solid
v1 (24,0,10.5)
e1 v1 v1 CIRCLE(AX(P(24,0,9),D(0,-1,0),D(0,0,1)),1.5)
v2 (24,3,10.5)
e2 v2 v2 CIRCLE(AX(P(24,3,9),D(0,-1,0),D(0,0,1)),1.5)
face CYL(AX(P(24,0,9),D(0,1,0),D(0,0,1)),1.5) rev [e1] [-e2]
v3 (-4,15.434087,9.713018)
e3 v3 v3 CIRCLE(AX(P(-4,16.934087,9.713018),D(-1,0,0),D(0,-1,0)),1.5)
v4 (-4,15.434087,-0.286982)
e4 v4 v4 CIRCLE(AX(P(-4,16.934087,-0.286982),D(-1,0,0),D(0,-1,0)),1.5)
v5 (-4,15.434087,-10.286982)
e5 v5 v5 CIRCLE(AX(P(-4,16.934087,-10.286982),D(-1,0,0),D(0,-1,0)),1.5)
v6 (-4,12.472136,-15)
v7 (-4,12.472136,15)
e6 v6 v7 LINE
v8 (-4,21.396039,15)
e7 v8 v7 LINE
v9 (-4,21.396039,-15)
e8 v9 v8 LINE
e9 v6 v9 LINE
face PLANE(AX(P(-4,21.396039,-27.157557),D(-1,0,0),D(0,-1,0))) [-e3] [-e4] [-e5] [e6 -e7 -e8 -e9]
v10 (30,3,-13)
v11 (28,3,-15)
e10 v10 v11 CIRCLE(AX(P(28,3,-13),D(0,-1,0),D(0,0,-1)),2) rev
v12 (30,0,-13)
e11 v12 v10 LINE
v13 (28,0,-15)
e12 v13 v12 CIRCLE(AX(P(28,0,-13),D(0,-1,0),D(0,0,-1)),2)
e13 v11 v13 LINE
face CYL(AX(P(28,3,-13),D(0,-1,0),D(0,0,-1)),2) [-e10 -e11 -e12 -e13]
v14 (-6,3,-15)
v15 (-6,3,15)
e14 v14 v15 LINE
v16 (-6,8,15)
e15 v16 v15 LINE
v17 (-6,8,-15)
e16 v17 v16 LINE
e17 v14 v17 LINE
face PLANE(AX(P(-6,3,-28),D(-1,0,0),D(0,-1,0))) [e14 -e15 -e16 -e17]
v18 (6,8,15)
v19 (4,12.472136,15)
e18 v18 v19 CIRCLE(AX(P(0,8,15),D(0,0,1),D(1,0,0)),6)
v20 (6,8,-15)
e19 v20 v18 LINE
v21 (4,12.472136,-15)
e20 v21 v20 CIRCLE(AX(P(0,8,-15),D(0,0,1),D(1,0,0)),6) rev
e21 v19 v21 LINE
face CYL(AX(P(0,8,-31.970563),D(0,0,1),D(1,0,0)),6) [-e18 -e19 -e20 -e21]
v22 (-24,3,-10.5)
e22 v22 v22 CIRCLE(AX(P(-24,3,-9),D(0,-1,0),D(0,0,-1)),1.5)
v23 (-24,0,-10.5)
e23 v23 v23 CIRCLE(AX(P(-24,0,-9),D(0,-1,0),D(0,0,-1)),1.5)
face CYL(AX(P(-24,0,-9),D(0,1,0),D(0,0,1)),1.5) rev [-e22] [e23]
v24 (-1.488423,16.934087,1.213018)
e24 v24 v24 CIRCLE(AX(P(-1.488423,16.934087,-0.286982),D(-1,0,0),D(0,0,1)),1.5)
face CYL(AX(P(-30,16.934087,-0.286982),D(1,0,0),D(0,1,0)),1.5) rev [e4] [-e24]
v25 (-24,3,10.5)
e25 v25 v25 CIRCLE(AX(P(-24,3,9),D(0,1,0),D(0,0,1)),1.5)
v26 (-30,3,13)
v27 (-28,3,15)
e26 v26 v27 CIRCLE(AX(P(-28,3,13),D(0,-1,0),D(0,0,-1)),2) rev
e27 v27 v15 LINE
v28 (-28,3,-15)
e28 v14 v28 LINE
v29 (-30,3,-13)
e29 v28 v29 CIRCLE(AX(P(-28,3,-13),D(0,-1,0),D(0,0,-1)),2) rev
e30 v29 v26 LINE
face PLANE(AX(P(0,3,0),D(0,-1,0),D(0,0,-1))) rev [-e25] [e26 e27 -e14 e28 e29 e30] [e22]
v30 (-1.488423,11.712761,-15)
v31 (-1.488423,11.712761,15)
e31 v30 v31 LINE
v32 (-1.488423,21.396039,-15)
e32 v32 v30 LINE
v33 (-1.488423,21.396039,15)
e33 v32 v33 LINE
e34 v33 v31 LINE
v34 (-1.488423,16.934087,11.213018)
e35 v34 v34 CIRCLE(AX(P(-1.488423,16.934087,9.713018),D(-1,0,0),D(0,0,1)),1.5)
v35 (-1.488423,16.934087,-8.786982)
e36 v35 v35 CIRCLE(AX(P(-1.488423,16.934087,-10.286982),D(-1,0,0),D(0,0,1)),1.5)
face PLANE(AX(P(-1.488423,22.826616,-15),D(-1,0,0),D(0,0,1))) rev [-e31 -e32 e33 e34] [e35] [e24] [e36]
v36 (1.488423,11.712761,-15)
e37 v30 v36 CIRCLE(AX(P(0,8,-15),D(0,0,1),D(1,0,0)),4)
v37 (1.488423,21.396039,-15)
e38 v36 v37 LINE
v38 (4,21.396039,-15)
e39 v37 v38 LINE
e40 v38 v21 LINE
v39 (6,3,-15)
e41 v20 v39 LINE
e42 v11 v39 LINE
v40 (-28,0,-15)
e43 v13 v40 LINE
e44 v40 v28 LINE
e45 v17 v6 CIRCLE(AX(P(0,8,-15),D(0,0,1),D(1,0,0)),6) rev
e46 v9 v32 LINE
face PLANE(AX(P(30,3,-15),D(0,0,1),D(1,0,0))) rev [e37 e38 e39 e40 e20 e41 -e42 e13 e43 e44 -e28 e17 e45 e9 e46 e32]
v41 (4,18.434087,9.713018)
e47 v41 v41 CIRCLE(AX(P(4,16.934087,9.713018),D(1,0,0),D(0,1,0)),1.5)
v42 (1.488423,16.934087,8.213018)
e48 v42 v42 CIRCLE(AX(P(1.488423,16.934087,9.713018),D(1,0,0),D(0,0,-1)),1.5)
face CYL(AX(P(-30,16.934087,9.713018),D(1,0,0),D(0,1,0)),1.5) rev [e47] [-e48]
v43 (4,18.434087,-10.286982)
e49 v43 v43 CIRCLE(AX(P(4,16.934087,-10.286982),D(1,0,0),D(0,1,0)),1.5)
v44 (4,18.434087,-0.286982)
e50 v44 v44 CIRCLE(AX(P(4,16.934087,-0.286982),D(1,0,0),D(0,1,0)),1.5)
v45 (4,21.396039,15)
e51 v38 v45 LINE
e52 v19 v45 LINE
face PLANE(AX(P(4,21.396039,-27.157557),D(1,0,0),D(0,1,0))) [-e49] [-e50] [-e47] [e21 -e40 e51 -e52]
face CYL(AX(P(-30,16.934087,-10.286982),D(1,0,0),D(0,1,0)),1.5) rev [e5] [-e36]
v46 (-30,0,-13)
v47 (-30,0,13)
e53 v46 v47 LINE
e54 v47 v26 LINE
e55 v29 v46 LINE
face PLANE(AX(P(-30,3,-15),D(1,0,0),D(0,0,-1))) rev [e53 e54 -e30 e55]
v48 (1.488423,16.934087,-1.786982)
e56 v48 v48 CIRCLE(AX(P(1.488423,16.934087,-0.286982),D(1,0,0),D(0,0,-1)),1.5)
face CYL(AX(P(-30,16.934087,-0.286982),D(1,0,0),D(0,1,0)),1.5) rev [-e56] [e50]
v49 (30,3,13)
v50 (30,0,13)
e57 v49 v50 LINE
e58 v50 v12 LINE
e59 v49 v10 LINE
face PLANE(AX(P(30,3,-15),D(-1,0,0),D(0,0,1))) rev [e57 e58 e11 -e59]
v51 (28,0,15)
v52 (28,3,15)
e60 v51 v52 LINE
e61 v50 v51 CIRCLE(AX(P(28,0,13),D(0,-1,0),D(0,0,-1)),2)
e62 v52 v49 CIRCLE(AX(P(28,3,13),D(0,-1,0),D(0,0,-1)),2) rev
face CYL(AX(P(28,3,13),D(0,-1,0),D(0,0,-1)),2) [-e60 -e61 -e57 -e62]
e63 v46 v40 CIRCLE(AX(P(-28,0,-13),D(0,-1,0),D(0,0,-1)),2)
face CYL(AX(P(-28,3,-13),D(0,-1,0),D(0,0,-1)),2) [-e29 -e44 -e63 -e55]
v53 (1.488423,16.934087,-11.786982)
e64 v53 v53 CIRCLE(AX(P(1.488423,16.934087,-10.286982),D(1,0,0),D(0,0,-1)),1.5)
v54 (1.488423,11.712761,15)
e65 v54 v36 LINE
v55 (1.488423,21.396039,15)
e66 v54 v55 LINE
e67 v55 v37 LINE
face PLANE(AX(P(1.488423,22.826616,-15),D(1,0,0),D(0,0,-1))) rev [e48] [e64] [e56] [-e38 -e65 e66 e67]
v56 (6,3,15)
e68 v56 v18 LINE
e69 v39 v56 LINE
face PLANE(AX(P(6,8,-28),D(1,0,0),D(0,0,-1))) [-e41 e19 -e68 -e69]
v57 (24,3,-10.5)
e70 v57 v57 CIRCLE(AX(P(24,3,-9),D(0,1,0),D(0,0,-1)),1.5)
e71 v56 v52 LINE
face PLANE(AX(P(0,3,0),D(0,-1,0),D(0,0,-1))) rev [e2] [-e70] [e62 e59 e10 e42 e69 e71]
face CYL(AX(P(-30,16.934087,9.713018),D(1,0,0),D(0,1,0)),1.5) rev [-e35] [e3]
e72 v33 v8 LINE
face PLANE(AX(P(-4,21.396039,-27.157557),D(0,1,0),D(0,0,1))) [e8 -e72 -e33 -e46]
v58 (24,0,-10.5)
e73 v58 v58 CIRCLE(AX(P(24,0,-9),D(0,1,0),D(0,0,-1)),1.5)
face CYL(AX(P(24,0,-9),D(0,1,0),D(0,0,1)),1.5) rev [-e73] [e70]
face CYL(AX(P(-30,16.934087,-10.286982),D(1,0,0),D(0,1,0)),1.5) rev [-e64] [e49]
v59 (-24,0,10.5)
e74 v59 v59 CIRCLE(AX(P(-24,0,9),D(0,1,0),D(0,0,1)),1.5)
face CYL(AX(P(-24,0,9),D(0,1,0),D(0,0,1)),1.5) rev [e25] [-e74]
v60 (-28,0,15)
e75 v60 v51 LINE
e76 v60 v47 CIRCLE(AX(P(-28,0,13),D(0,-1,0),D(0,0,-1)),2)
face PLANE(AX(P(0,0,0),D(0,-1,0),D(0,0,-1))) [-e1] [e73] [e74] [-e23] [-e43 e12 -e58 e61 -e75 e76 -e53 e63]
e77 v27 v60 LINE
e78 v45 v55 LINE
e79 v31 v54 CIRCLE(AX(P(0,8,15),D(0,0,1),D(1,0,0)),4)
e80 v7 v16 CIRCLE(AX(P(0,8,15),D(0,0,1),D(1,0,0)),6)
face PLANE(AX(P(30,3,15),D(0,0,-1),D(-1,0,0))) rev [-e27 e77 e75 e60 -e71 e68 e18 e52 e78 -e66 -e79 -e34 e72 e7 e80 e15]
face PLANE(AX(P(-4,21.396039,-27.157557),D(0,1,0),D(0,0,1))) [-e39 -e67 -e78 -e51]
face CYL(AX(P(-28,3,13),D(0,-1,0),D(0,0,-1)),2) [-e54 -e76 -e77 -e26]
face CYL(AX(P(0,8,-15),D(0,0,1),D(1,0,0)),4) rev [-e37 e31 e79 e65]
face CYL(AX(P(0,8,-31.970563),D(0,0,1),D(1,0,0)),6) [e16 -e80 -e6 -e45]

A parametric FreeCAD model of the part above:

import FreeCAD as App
import Part
import Sketcher
Q = App.Units.Quantity


def edges_at(feature, points):
    """Names of the edges that pass closest to the given points."""
    edges = feature.Shape.Edges
    near = lambda p: min(range(len(edges)), key=lambda i: edges[i].distToShape(Part.Vertex(*p))[0])
    return sorted({f"Edge{near(p) + 1}" for p in points})


def add_polygon(sketch, points):
    """Adds a closed chain of lines whose ends are joined by coincident constraints."""
    first, n = sketch.GeometryCount, len(points)
    for a, b in zip(points, points[1:] + points[:1]):
        sketch.addGeometry(Part.LineSegment(App.Vector(*a, 0), App.Vector(*b, 0)), False)
    for i in range(n):
        sketch.addConstraint(Sketcher.Constraint("Coincident", first + i, 2, first + (i + 1) % n, 1))

doc = App.newDocument("Part")
params = doc.addObject("Spreadsheet::Sheet", "Params")
for row, (alias, value) in enumerate([
    ("sketch1_width", "60 mm"),
    ("sketch1_height", "30 mm"),
    ("pad1_length", "3 mm"),
    ("sketch2_diameter", "3 mm"),
    ("pocket1_length", "3 mm"),
    ("sketch3_diameter", "3 mm"),
    ("pocket2_length", "3 mm"),
    ("fillet_radius", "2 mm"),
    ("sketch4_diameter", "12 mm"),
    ("pad2_length", "30 mm"),
    ("sketch5_width", "12 mm"),
    ("sketch5_height", "5 mm"),
    ("pad3_length", "30 mm"),
    ("sketch6_diameter", "8 mm"),
    ("sketch7_width", "8 mm"),
    ("pad4_length", "30 mm"),
    ("sketch9_diameter", "3 mm"),
], start=1):
    params.set(f"A{row}", alias)
    params.set(f"B{row}", "=" + value)
    params.setAlias(f"B{row}", alias)

body = doc.addObject("PartDesign::Body", "Body")

sketch1 = body.newObject("Sketcher::SketchObject", "Sketch")
sketch1.AttachmentSupport = (doc.getObject("XZ_Plane"), [""])
sketch1.MapMode = "FlatFace"
add_polygon(sketch1, [(-30, -15), (-30, 15), (30, 15), (30, -15)])
sketch1.addConstraint([
    Sketcher.Constraint("Vertical", 0),
    Sketcher.Constraint("Horizontal", 1),
    Sketcher.Constraint("Vertical", 2),
    Sketcher.Constraint("Horizontal", 3),
    Sketcher.Constraint("Symmetric", 0, 2, 2, 2, -1, 1),
    Sketcher.Constraint("DistanceX", 1, 1, 1, 2, Q("60 mm")),
    Sketcher.Constraint("DistanceY", 0, 1, 0, 2, Q("30 mm")),
])
sketch1.setExpression("Constraints[9]", "Params.sketch1_width")
sketch1.setExpression("Constraints[10]", "Params.sketch1_height")
pad1 = body.newObject("PartDesign::Pad", "Pad")
pad1.Profile = sketch1
pad1.setExpression("Length", "Params.pad1_length")
pad1.Reversed = True

sketch2 = body.newObject("Sketcher::SketchObject", "Sketch001")
sketch2.AttachmentSupport = (doc.getObject("XZ_Plane"), [""])
sketch2.MapMode = "FlatFace"
sketch2.AttachmentOffset = App.Placement(App.Vector(0, 0, -3), App.Rotation())
sketch2.addGeometry(Part.Circle(App.Vector(-24, 9, 0), App.Vector(0, 0, 1), 1.5), False)
sketch2.addConstraint([
    Sketcher.Constraint("Diameter", 0, Q("3 mm")),
    Sketcher.Constraint("DistanceX", 0, 3, -1, 1, Q("24 mm")),
    Sketcher.Constraint("DistanceY", -1, 1, 0, 3, Q("9 mm")),
])
sketch2.setExpression("Constraints[0]", "Params.sketch2_diameter")
pocket1 = body.newObject("PartDesign::Pocket", "Pocket")
pocket1.Profile = sketch2
pocket1.setExpression("Length", "Params.pocket1_length")
pocket1.Reversed = True
doc.recompute()

mirrored = body.newObject("PartDesign::Mirrored", "Mirrored")
mirrored.Originals = [pocket1]
mirrored.MirrorPlane = (doc.getObject("XY_Plane"), [""])
body.Tip = mirrored
doc.recompute()

mirrored2 = body.newObject("PartDesign::Mirrored", "Mirrored001")
mirrored2.Originals = [pocket1]
mirrored2.MirrorPlane = (doc.getObject("YZ_Plane"), [""])
body.Tip = mirrored2

sketch3 = body.newObject("Sketcher::SketchObject", "Sketch002")
sketch3.AttachmentSupport = (doc.getObject("XZ_Plane"), [""])
sketch3.MapMode = "FlatFace"
sketch3.AttachmentOffset = App.Placement(App.Vector(0, 0, -3), App.Rotation())
sketch3.addGeometry(Part.Circle(App.Vector(24, -9, 0), App.Vector(0, 0, 1), 1.5), False)
sketch3.addConstraint([
    Sketcher.Constraint("Diameter", 0, Q("3 mm")),
    Sketcher.Constraint("DistanceX", -1, 1, 0, 3, Q("24 mm")),
    Sketcher.Constraint("DistanceY", 0, 3, -1, 1, Q("9 mm")),
])
sketch3.setExpression("Constraints[0]", "Params.sketch3_diameter")
pocket2 = body.newObject("PartDesign::Pocket", "Pocket001")
pocket2.Profile = sketch3
pocket2.setExpression("Length", "Params.pocket2_length")
pocket2.Reversed = True
doc.recompute()

fillet = body.newObject("PartDesign::Fillet", "Fillet")
fillet.Base = (pocket2, edges_at(pocket2, [
    (-30, 1.5, -15),
    (30, 1.5, -15),
    (30, 1.5, 15),
    (-30, 1.5, 15),
]))
fillet.setExpression("Radius", "Params.fillet_radius")

sketch4 = body.newObject("Sketcher::SketchObject", "Sketch003")
sketch4.AttachmentSupport = (doc.getObject("XY_Plane"), [""])
sketch4.MapMode = "FlatFace"
sketch4.AttachmentOffset = App.Placement(App.Vector(0, 0, 15), App.Rotation())
sketch4.addGeometry(Part.Circle(App.Vector(0, 8, 0), App.Vector(0, 0, 1), 6), False)
sketch4.addConstraint([
    Sketcher.Constraint("PointOnObject", 0, 3, -2),
    Sketcher.Constraint("Diameter", 0, Q("12 mm")),
    Sketcher.Constraint("DistanceY", -1, 1, 0, 3, Q("8 mm")),
])
sketch4.setExpression("Constraints[1]", "Params.sketch4_diameter")
pad2 = body.newObject("PartDesign::Pad", "Pad001")
pad2.Profile = sketch4
pad2.setExpression("Length", "Params.pad2_length")
pad2.Reversed = True

sketch5 = body.newObject("Sketcher::SketchObject", "Sketch004")
sketch5.AttachmentSupport = (doc.getObject("XY_Plane"), [""])
sketch5.MapMode = "FlatFace"
sketch5.AttachmentOffset = App.Placement(App.Vector(0, 0, 15), App.Rotation())
add_polygon(sketch5, [(-6, 8), (-6, 3), (6, 3), (6, 8)])
sketch5.addConstraint([
    Sketcher.Constraint("Vertical", 0),
    Sketcher.Constraint("Horizontal", 1),
    Sketcher.Constraint("Vertical", 2),
    Sketcher.Constraint("Horizontal", 3),
    Sketcher.Constraint("DistanceX", 1, 1, 1, 2, Q("12 mm")),
    Sketcher.Constraint("DistanceY", 0, 2, 0, 1, Q("5 mm")),
    Sketcher.Constraint("DistanceX", 0, 2, -1, 1, Q("6 mm")),
    Sketcher.Constraint("DistanceY", -1, 1, 0, 2, Q("3 mm")),
])
sketch5.setExpression("Constraints[8]", "Params.sketch5_width")
sketch5.setExpression("Constraints[9]", "Params.sketch5_height")
pad3 = body.newObject("PartDesign::Pad", "Pad002")
pad3.Profile = sketch5
pad3.setExpression("Length", "Params.pad3_length")
pad3.Reversed = True

sketch6 = body.newObject("Sketcher::SketchObject", "Sketch005")
sketch6.AttachmentSupport = (doc.getObject("XY_Plane"), [""])
sketch6.MapMode = "FlatFace"
sketch6.AttachmentOffset = App.Placement(App.Vector(0, 0, 15), App.Rotation())
sketch6.addGeometry(Part.Circle(App.Vector(0, 8, 0), App.Vector(0, 0, 1), 4), False)
sketch6.addConstraint([
    Sketcher.Constraint("PointOnObject", 0, 3, -2),
    Sketcher.Constraint("Diameter", 0, Q("8 mm")),
    Sketcher.Constraint("DistanceY", -1, 1, 0, 3, Q("8 mm")),
])
sketch6.setExpression("Constraints[1]", "Params.sketch6_diameter")
pocket3 = body.newObject("PartDesign::Pocket", "Pocket002")
pocket3.Profile = sketch6
pocket3.Type = "ThroughAll"

sketch7 = body.newObject("Sketcher::SketchObject", "Sketch006")
sketch7.AttachmentSupport = (doc.getObject("XY_Plane"), [""])
sketch7.MapMode = "FlatFace"
sketch7.AttachmentOffset = App.Placement(App.Vector(0, 0, 15), App.Rotation())
add_polygon(sketch7, [(-4, 21), (-4, 12), (4, 12), (4, 21)])
sketch7.addConstraint([
    Sketcher.Constraint("Vertical", 0),
    Sketcher.Constraint("Horizontal", 1),
    Sketcher.Constraint("Vertical", 2),
    Sketcher.Constraint("Horizontal", 3),
    Sketcher.Constraint("DistanceX", 1, 1, 1, 2, Q("8 mm")),
    Sketcher.Constraint("DistanceX", 0, 2, -1, 1, Q("4 mm")),
    Sketcher.Constraint("DistanceY", 0, 2, 0, 1, Q("9.154572 mm")),
    Sketcher.Constraint("DistanceY", -1, 1, 2, 2, Q("21.396039 mm")),
])
sketch7.setExpression("Constraints[8]", "Params.sketch7_width")
pad4 = body.newObject("PartDesign::Pad", "Pad003")
pad4.Profile = sketch7
pad4.setExpression("Length", "Params.pad4_length")
pad4.Reversed = True

sketch8 = body.newObject("Sketcher::SketchObject", "Sketch007")
sketch8.AttachmentSupport = (doc.getObject("XY_Plane"), [""])
sketch8.MapMode = "FlatFace"
sketch8.AttachmentOffset = App.Placement(App.Vector(0, 0, 15), App.Rotation())
add_polygon(sketch8, [(-1.5, 22.8), (-1.5, 10), (1.5, 10), (1.5, 22.8)])
sketch8.addConstraint([
    Sketcher.Constraint("Vertical", 0),
    Sketcher.Constraint("Horizontal", 1),
    Sketcher.Constraint("Vertical", 2),
    Sketcher.Constraint("Horizontal", 3),
    Sketcher.Constraint("DistanceY", 0, 2, 0, 1, Q("12.859301 mm")),
    Sketcher.Constraint("DistanceX", 1, 1, 1, 2, Q("2.976846 mm")),
    Sketcher.Constraint("DistanceX", 0, 2, -1, 1, Q("1.488423 mm")),
    Sketcher.Constraint("DistanceY", -1, 1, 0, 2, Q("9.967315 mm")),
])
pocket4 = body.newObject("PartDesign::Pocket", "Pocket003")
pocket4.Profile = sketch8
pocket4.Type = "ThroughAll"

sketch9 = body.newObject("Sketcher::SketchObject", "Sketch008")
sketch9.AttachmentSupport = (doc.getObject("YZ_Plane"), [""])
sketch9.MapMode = "FlatFace"
sketch9.AttachmentOffset = App.Placement(App.Vector(0, 0, 4), App.Rotation())
sketch9.addGeometry([
    Part.Circle(App.Vector(16.9, -10.3, 0), App.Vector(0, 0, 1), 1.5),
    Part.Circle(App.Vector(16.9, -0.3, 0), App.Vector(0, 0, 1), 1.5),
    Part.Circle(App.Vector(16.9, 9.7, 0), App.Vector(0, 0, 1), 1.5),
], False)
sketch9.addConstraint([
    Sketcher.Constraint("Equal", 0, 1),
    Sketcher.Constraint("Equal", 1, 2),
    Sketcher.Constraint("Vertical", 0, 3, 1, 3),
    Sketcher.Constraint("Vertical", 1, 3, 2, 3),
    Sketcher.Constraint("Diameter", 0, Q("3 mm")),
    Sketcher.Constraint("DistanceY", 0, 3, 1, 3, Q("10 mm")),
    Sketcher.Constraint("DistanceY", 1, 3, 2, 3, Q("10 mm")),
    Sketcher.Constraint("DistanceX", -1, 1, 0, 3, Q("16.934087 mm")),
    Sketcher.Constraint("DistanceY", 0, 3, -1, 1, Q("10.286982 mm")),
])
sketch9.setExpression("Constraints[4]", "Params.sketch9_diameter")
pocket5 = body.newObject("PartDesign::Pocket", "Pocket004")
pocket5.Profile = sketch9
pocket5.Type = "ThroughAll"

doc.recompute()
